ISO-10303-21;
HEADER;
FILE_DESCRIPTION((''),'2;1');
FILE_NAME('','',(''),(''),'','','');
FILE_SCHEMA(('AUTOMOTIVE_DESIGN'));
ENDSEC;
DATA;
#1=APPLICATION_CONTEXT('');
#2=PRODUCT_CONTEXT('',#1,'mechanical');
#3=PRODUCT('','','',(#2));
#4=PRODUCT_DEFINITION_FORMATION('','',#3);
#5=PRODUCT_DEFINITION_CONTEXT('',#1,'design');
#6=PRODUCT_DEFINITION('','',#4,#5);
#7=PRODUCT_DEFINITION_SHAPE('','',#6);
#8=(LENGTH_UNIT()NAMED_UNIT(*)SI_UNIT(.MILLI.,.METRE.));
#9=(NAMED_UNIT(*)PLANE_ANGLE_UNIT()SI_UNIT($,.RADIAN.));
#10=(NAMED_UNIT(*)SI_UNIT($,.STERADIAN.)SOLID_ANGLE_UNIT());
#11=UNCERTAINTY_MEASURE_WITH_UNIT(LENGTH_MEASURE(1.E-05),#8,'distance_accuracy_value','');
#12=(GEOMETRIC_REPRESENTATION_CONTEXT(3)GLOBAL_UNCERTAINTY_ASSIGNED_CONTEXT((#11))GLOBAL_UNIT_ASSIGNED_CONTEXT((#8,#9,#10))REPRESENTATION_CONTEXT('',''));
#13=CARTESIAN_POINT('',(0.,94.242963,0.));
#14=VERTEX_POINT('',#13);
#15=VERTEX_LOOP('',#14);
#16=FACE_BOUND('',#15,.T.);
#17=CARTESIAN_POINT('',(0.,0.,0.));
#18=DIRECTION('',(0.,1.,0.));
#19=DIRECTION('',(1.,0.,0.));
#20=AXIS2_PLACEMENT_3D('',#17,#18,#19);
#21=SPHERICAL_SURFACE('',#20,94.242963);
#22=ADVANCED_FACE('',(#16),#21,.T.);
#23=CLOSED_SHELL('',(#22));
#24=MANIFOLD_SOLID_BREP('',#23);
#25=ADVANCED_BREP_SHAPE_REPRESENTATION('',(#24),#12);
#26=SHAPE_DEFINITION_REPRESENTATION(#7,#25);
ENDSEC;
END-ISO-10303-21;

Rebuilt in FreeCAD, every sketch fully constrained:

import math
import FreeCAD as App
import Part
import Sketcher
from FreeCAD import Vector

doc = App.newDocument("Part")
body = doc.addObject("PartDesign::Body", "Body")

sketch1 = doc.addObject("Sketcher::SketchObject", "Sketch")
body.addObject(sketch1)
sketch1.AttachmentSupport = (doc.XY_Plane, [""])
sketch1.MapMode = "FlatFace"
sketch1.addGeometry([
    Part.LineSegment(Vector(0, 94.242963, 0), Vector(0, -94.242963, 0)),
    Part.ArcOfCircle(Part.Circle(Vector(0, 0, 0), Vector(0, 0, 1), 94.242963), math.radians(-90), math.radians(90)),
], False)
sketch1.addConstraint([
    Sketcher.Constraint("Coincident", 0, 1, 1, 2),
    Sketcher.Constraint("Coincident", 1, 1, 0, 2),
    Sketcher.Constraint("Vertical", 0),
    Sketcher.Constraint("Coincident", 1, 3, -1, 1),
    Sketcher.Constraint("PointOnObject", 0, 1, -2),
    Sketcher.Constraint("Radius", 1, 94.242963),
])
revolution = doc.addObject("PartDesign::Revolution", "Revolution")
body.addObject(revolution)
revolution.Profile = sketch1
revolution.ReferenceAxis = (sketch1, ["V_Axis"])
revolution.Angle = 360

doc.recompute()
